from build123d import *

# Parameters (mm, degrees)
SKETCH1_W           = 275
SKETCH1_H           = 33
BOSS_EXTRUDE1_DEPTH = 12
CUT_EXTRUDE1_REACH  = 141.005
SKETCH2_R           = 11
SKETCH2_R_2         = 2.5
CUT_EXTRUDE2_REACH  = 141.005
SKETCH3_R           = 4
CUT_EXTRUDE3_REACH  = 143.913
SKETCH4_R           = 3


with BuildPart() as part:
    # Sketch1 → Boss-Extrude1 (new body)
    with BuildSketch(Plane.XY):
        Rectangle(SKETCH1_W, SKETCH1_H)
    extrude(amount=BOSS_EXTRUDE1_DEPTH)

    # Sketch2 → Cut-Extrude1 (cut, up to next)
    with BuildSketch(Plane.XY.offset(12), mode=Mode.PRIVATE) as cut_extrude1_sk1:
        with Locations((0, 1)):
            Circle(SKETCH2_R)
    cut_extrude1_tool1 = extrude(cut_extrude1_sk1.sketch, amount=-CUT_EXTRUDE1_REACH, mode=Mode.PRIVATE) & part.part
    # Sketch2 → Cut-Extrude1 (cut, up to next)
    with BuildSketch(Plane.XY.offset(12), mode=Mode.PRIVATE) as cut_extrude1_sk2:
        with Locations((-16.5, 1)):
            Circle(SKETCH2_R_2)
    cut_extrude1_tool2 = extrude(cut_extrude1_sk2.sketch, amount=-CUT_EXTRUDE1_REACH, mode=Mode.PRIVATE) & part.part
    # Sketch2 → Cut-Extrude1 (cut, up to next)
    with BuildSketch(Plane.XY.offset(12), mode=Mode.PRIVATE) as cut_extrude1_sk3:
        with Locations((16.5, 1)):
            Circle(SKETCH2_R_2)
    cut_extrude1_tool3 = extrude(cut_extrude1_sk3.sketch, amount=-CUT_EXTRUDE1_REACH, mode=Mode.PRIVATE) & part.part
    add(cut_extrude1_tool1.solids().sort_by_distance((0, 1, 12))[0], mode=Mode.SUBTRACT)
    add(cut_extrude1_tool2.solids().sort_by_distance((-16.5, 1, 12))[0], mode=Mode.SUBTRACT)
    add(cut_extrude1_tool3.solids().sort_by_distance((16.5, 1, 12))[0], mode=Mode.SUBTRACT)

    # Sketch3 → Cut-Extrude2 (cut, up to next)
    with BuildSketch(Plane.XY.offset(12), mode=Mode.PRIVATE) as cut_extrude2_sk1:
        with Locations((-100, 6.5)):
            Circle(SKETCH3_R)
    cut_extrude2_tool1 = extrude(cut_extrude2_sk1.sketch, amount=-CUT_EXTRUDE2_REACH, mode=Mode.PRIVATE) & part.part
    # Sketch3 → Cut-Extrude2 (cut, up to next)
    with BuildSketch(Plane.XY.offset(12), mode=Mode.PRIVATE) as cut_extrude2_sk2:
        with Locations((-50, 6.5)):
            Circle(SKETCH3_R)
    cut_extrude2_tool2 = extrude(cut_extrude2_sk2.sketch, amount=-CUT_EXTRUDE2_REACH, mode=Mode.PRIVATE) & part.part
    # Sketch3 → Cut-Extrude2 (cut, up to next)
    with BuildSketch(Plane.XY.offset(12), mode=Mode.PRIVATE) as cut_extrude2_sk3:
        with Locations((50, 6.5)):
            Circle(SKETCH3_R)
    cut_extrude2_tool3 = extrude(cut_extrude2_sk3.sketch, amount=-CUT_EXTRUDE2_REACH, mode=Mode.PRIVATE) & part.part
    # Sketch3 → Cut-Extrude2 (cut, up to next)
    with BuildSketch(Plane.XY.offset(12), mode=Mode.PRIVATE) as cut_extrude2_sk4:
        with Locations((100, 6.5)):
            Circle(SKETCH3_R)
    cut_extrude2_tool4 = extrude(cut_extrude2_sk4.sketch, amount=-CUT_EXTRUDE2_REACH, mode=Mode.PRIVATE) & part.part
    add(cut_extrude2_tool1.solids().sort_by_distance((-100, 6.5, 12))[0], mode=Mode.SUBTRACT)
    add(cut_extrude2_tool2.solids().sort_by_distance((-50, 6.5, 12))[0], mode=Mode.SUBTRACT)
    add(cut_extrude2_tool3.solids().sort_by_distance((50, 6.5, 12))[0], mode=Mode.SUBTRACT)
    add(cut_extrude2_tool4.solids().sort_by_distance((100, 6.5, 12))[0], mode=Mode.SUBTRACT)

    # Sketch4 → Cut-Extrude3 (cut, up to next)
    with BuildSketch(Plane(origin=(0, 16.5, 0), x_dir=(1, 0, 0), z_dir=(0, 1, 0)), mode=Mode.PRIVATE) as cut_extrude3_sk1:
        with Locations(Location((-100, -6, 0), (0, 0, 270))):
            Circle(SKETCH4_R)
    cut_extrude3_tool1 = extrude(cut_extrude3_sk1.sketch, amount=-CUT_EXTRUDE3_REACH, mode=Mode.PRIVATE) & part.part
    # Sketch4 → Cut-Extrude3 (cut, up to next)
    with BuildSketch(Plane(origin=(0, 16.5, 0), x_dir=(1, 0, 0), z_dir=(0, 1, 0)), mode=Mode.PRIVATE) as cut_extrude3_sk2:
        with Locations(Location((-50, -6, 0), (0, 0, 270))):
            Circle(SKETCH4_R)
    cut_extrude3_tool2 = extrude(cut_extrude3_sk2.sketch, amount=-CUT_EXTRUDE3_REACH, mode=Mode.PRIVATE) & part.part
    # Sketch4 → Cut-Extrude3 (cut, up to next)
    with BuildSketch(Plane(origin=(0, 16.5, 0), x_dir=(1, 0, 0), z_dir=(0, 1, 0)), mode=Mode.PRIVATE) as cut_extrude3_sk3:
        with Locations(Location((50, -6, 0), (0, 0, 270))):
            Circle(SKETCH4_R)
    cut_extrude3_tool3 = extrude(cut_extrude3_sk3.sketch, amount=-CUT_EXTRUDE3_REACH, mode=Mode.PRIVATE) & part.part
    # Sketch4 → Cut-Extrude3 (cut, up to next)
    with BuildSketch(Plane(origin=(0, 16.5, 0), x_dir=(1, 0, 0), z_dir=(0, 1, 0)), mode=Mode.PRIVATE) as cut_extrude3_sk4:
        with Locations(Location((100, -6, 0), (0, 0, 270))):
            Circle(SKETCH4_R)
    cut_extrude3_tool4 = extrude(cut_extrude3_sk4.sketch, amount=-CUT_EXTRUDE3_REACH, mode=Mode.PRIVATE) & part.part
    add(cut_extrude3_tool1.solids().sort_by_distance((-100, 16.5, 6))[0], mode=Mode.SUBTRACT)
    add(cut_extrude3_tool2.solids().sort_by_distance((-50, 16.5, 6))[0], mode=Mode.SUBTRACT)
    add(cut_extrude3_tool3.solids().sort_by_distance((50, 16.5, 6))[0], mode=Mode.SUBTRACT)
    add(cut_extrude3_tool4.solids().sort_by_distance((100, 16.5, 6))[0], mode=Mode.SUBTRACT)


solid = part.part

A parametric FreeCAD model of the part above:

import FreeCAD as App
import Part
import Sketcher
from FreeCAD import Vector


def add_polygon(sketch, points):
    """Adds a closed chain of lines whose ends are joined by coincident constraints."""
    first, n = sketch.GeometryCount, len(points)
    for a, b in zip(points, points[1:] + points[:1]):
        sketch.addGeometry(Part.LineSegment(App.Vector(*a, 0), App.Vector(*b, 0)), False)
    for i in range(n):
        sketch.addConstraint(Sketcher.Constraint("Coincident", first + i, 2, first + (i + 1) % n, 1))

doc = App.newDocument("Part")
body = doc.addObject("PartDesign::Body", "Body")

sketch1 = doc.addObject("Sketcher::SketchObject", "Sketch")
body.addObject(sketch1)
sketch1.AttachmentSupport = (doc.XY_Plane, [""])
sketch1.MapMode = "FlatFace"
add_polygon(sketch1, [(-138, 16), (-138, -16), (138, -16), (138, 16)])
sketch1.addConstraint([
    Sketcher.Constraint("Vertical", 0),
    Sketcher.Constraint("Horizontal", 1),
    Sketcher.Constraint("Vertical", 2),
    Sketcher.Constraint("Horizontal", 3),
    Sketcher.Constraint("Symmetric", 0, 2, 2, 2, -1, 1),
    Sketcher.Constraint("DistanceX", 1, 1, 1, 2, 275.0),
    Sketcher.Constraint("DistanceY", 0, 2, 0, 1, 33.0),
])
pad1 = doc.addObject("PartDesign::Pad", "Pad")
body.addObject(pad1)
pad1.Profile = sketch1
pad1.Length = 12

sketch2 = doc.addObject("Sketcher::SketchObject", "Sketch001")
body.addObject(sketch2)
sketch2.AttachmentSupport = (doc.XY_Plane, [""])
sketch2.MapMode = "FlatFace"
sketch2.AttachmentOffset = App.Placement(Vector(0, 0, 12), App.Rotation())
sketch2.addGeometry(Part.Circle(Vector(0, 1, 0), Vector(0, 0, 1), 11), False)
sketch2.addConstraint([
    Sketcher.Constraint("PointOnObject", 0, 3, -2),
    Sketcher.Constraint("Diameter", 0, 22.0),
    Sketcher.Constraint("DistanceY", -1, 1, 0, 3, 1.0),
])
pocket1 = doc.addObject("PartDesign::Pocket", "Pocket")
body.addObject(pocket1)
pocket1.Profile = sketch2
pocket1.Type = "UpToFirst"

sketch3 = doc.addObject("Sketcher::SketchObject", "Sketch002")
body.addObject(sketch3)
sketch3.AttachmentSupport = (doc.XY_Plane, [""])
sketch3.MapMode = "FlatFace"
sketch3.AttachmentOffset = App.Placement(Vector(0, 0, 12), App.Rotation())
sketch3.addGeometry(Part.Circle(Vector(-16.5, 1, 0), Vector(0, 0, 1), 2.5), False)
sketch3.addConstraint([
    Sketcher.Constraint("Diameter", 0, 5.0),
    Sketcher.Constraint("DistanceY", -1, 1, 0, 3, 1.0),
    Sketcher.Constraint("DistanceX", 0, 3, -1, 1, 16.5),
])
pocket2 = doc.addObject("PartDesign::Pocket", "Pocket001")
body.addObject(pocket2)
pocket2.Profile = sketch3
pocket2.Type = "UpToFirst"

sketch4 = doc.addObject("Sketcher::SketchObject", "Sketch003")
body.addObject(sketch4)
sketch4.AttachmentSupport = (doc.XY_Plane, [""])
sketch4.MapMode = "FlatFace"
sketch4.AttachmentOffset = App.Placement(Vector(0, 0, 12), App.Rotation())
sketch4.addGeometry(Part.Circle(Vector(16.5, 1, 0), Vector(0, 0, 1), 2.5), False)
sketch4.addConstraint([
    Sketcher.Constraint("Diameter", 0, 5.0),
    Sketcher.Constraint("DistanceY", -1, 1, 0, 3, 1.0),
    Sketcher.Constraint("DistanceX", -1, 1, 0, 3, 16.5),
])
pocket3 = doc.addObject("PartDesign::Pocket", "Pocket002")
body.addObject(pocket3)
pocket3.Profile = sketch4
pocket3.Type = "UpToFirst"

sketch5 = doc.addObject("Sketcher::SketchObject", "Sketch004")
body.addObject(sketch5)
sketch5.AttachmentSupport = (doc.XY_Plane, [""])
sketch5.MapMode = "FlatFace"
sketch5.AttachmentOffset = App.Placement(Vector(0, 0, 12), App.Rotation())
sketch5.addGeometry(Part.Circle(Vector(-100, 6.5, 0), Vector(0, 0, 1), 4), False)
sketch5.addConstraint([
    Sketcher.Constraint("Diameter", 0, 8.0),
    Sketcher.Constraint("DistanceX", 0, 3, -1, 1, 100.0),
    Sketcher.Constraint("DistanceY", -1, 1, 0, 3, 6.5),
])
pocket4 = doc.addObject("PartDesign::Pocket", "Pocket003")
body.addObject(pocket4)
pocket4.Profile = sketch5
pocket4.Type = "UpToFirst"

sketch6 = doc.addObject("Sketcher::SketchObject", "Sketch005")
body.addObject(sketch6)
sketch6.AttachmentSupport = (doc.XY_Plane, [""])
sketch6.MapMode = "FlatFace"
sketch6.AttachmentOffset = App.Placement(Vector(0, 0, 12), App.Rotation())
sketch6.addGeometry(Part.Circle(Vector(-50, 6.5, 0), Vector(0, 0, 1), 4), False)
sketch6.addConstraint([
    Sketcher.Constraint("Diameter", 0, 8.0),
    Sketcher.Constraint("DistanceX", 0, 3, -1, 1, 50.0),
    Sketcher.Constraint("DistanceY", -1, 1, 0, 3, 6.5),
])
pocket5 = doc.addObject("PartDesign::Pocket", "Pocket004")
body.addObject(pocket5)
pocket5.Profile = sketch6
pocket5.Type = "UpToFirst"

sketch7 = doc.addObject("Sketcher::SketchObject", "Sketch006")
body.addObject(sketch7)
sketch7.AttachmentSupport = (doc.XY_Plane, [""])
sketch7.MapMode = "FlatFace"
sketch7.AttachmentOffset = App.Placement(Vector(0, 0, 12), App.Rotation())
sketch7.addGeometry(Part.Circle(Vector(50, 6.5, 0), Vector(0, 0, 1), 4), False)
sketch7.addConstraint([
    Sketcher.Constraint("Diameter", 0, 8.0),
    Sketcher.Constraint("DistanceX", -1, 1, 0, 3, 50.0),
    Sketcher.Constraint("DistanceY", -1, 1, 0, 3, 6.5),
])
pocket6 = doc.addObject("PartDesign::Pocket", "Pocket005")
body.addObject(pocket6)
pocket6.Profile = sketch7
pocket6.Type = "UpToFirst"

sketch8 = doc.addObject("Sketcher::SketchObject", "Sketch007")
body.addObject(sketch8)
sketch8.AttachmentSupport = (doc.XY_Plane, [""])
sketch8.MapMode = "FlatFace"
sketch8.AttachmentOffset = App.Placement(Vector(0, 0, 12), App.Rotation())
sketch8.addGeometry(Part.Circle(Vector(100, 6.5, 0), Vector(0, 0, 1), 4), False)
sketch8.addConstraint([
    Sketcher.Constraint("Diameter", 0, 8.0),
    Sketcher.Constraint("DistanceX", -1, 1, 0, 3, 100.0),
    Sketcher.Constraint("DistanceY", -1, 1, 0, 3, 6.5),
])
pocket7 = doc.addObject("PartDesign::Pocket", "Pocket006")
body.addObject(pocket7)
pocket7.Profile = sketch8
pocket7.Type = "UpToFirst"

sketch9 = doc.addObject("Sketcher::SketchObject", "Sketch008")
body.addObject(sketch9)
sketch9.AttachmentSupport = (doc.XZ_Plane, [""])
sketch9.MapMode = "FlatFace"
sketch9.AttachmentOffset = App.Placement(Vector(0, 0, -16.5), App.Rotation())
sketch9.addGeometry(Part.Circle(Vector(-100, 6, 0), Vector(0, 0, 1), 3), False)
sketch9.addConstraint([
    Sketcher.Constraint("Diameter", 0, 6.0),
    Sketcher.Constraint("DistanceX", 0, 3, -1, 1, 100.0),
    Sketcher.Constraint("DistanceY", -1, 1, 0, 3, 6.0),
])
pocket8 = doc.addObject("PartDesign::Pocket", "Pocket007")
body.addObject(pocket8)
pocket8.Profile = sketch9
pocket8.Type = "UpToFirst"
pocket8.Reversed = True

sketch10 = doc.addObject("Sketcher::SketchObject", "Sketch009")
body.addObject(sketch10)
sketch10.AttachmentSupport = (doc.XZ_Plane, [""])
sketch10.MapMode = "FlatFace"
sketch10.AttachmentOffset = App.Placement(Vector(0, 0, -16.5), App.Rotation())
sketch10.addGeometry(Part.Circle(Vector(-50, 6, 0), Vector(0, 0, 1), 3), False)
sketch10.addConstraint([
    Sketcher.Constraint("Diameter", 0, 6.0),
    Sketcher.Constraint("DistanceX", 0, 3, -1, 1, 50.0),
    Sketcher.Constraint("DistanceY", -1, 1, 0, 3, 6.0),
])
pocket9 = doc.addObject("PartDesign::Pocket", "Pocket008")
body.addObject(pocket9)
pocket9.Profile = sketch10
pocket9.Type = "UpToFirst"
pocket9.Reversed = True

sketch11 = doc.addObject("Sketcher::SketchObject", "Sketch010")
body.addObject(sketch11)
sketch11.AttachmentSupport = (doc.XZ_Plane, [""])
sketch11.MapMode = "FlatFace"
sketch11.AttachmentOffset = App.Placement(Vector(0, 0, -16.5), App.Rotation())
sketch11.addGeometry(Part.Circle(Vector(50, 6, 0), Vector(0, 0, 1), 3), False)
sketch11.addConstraint([
    Sketcher.Constraint("Diameter", 0, 6.0),
    Sketcher.Constraint("DistanceX", -1, 1, 0, 3, 50.0),
    Sketcher.Constraint("DistanceY", -1, 1, 0, 3, 6.0),
])
pocket10 = doc.addObject("PartDesign::Pocket", "Pocket009")
body.addObject(pocket10)
pocket10.Profile = sketch11
pocket10.Type = "UpToFirst"
pocket10.Reversed = True

sketch12 = doc.addObject("Sketcher::SketchObject", "Sketch011")
body.addObject(sketch12)
sketch12.AttachmentSupport = (doc.XZ_Plane, [""])
sketch12.MapMode = "FlatFace"
sketch12.AttachmentOffset = App.Placement(Vector(0, 0, -16.5), App.Rotation())
sketch12.addGeometry(Part.Circle(Vector(100, 6, 0), Vector(0, 0, 1), 3), False)
sketch12.addConstraint([
    Sketcher.Constraint("Diameter", 0, 6.0),
    Sketcher.Constraint("DistanceX", -1, 1, 0, 3, 100.0),
    Sketcher.Constraint("DistanceY", -1, 1, 0, 3, 6.0),
])
pocket11 = doc.addObject("PartDesign::Pocket", "Pocket010")
body.addObject(pocket11)
pocket11.Profile = sketch12
pocket11.Type = "UpToFirst"
pocket11.Reversed = True

doc.recompute()
